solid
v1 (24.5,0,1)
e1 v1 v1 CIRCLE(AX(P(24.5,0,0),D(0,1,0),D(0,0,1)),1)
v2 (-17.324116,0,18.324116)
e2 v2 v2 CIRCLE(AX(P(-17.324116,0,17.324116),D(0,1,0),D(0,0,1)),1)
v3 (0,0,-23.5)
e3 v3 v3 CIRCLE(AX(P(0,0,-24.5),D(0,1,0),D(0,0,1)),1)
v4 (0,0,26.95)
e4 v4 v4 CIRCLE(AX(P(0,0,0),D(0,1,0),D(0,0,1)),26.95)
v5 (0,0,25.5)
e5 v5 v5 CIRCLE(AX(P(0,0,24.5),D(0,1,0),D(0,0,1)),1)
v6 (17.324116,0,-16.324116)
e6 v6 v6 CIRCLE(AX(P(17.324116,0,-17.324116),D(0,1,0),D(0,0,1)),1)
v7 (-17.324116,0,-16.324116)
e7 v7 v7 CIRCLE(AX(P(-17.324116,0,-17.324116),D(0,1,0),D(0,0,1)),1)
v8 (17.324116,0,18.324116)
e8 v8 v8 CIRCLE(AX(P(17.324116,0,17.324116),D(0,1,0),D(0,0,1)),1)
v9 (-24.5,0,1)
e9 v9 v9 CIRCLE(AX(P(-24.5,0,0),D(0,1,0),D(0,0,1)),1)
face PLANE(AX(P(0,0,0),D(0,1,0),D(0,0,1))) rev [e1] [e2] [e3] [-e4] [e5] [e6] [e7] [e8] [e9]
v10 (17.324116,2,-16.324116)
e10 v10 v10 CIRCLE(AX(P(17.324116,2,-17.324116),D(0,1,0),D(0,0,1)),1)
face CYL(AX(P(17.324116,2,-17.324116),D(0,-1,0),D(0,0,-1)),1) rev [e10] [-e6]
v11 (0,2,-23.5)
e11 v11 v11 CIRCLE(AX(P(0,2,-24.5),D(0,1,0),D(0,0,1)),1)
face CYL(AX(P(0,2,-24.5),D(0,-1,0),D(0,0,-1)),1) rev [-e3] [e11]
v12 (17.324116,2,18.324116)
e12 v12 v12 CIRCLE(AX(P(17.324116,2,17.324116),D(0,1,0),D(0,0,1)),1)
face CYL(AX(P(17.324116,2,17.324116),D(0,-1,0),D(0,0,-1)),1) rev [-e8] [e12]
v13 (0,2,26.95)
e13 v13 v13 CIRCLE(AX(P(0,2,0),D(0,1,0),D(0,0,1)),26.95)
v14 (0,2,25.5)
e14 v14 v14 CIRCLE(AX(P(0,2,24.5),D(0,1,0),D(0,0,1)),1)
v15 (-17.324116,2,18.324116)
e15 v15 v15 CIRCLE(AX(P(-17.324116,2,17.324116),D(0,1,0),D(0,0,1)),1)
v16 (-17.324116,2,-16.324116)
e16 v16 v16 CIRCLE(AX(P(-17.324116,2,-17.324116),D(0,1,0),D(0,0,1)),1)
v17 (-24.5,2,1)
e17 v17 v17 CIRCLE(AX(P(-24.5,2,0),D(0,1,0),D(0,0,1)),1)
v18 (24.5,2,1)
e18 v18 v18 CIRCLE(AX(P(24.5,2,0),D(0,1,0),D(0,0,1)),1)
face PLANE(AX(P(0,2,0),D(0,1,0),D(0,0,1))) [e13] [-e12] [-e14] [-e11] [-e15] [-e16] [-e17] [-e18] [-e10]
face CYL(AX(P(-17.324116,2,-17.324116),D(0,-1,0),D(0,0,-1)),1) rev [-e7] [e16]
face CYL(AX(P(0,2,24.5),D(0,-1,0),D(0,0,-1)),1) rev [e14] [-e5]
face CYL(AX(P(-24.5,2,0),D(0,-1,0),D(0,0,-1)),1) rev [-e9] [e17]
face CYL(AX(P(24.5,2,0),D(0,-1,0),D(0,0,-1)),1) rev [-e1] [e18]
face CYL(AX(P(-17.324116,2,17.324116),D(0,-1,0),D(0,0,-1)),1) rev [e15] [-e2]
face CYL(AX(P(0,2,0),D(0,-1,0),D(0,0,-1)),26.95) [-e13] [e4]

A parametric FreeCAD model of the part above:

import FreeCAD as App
import Part
import Sketcher

V = App.Vector

doc = App.newDocument("Part")
body = doc.addObject("PartDesign::Body", "Body")

# Sketch on XZ plane
sketch1 = doc.addObject("Sketcher::SketchObject", "Sketch")
body.addObject(sketch1)
sketch1.AttachmentSupport = (doc.XZ_Plane, [""])
sketch1.MapMode = "FlatFace"
sketch1.addGeometry([
    Part.Circle(V(0, 0, 0), V(0, 0, 1), 26.95),  # 0
    Part.Circle(V(-17.324116, 17.324116, 0), V(0, 0, 1), 1),  # 1
    Part.Circle(V(0, 24.5, 0), V(0, 0, 1), 1),  # 2
    Part.Circle(V(17.324116, 17.324116, 0), V(0, 0, 1), 1),  # 3
    Part.Circle(V(-24.5, 0, 0), V(0, 0, 1), 1),  # 4
    Part.Circle(V(-17.324116, -17.324116, 0), V(0, 0, 1), 1),  # 5
    Part.Circle(V(24.5, 0, 0), V(0, 0, 1), 1),  # 6
    Part.Circle(V(0, -24.5, 0), V(0, 0, 1), 1),  # 7
    Part.Circle(V(17.324116, -17.324116, 0), V(0, 0, 1), 1),  # 8
], False)
sketch1.addConstraint([
    Sketcher.Constraint("Coincident", 0, 3, -1, 1),
    Sketcher.Constraint("Equal", 1, 2),
    Sketcher.Constraint("Equal", 2, 3),
    Sketcher.Constraint("Equal", 3, 4),
    Sketcher.Constraint("Equal", 4, 5),
    Sketcher.Constraint("Equal", 5, 6),
    Sketcher.Constraint("Equal", 6, 7),
    Sketcher.Constraint("Equal", 7, 8),
    Sketcher.Constraint("Symmetric", 3, 3, 5, 3, -1, 1),
    Sketcher.Constraint("Symmetric", 4, 3, 6, 3, -1, 1),
    Sketcher.Constraint("Symmetric", 2, 3, 7, 3, -1, 1),
    Sketcher.Constraint("Symmetric", 1, 3, 8, 3, -1, 1),
    Sketcher.Constraint("Symmetric", 1, 3, 3, 3, -2),
    Sketcher.Constraint("PointOnObject", 2, 3, -2),
    Sketcher.Constraint("PointOnObject", 4, 3, -1),
    Sketcher.Constraint("Diameter", 1, 2.0),
    Sketcher.Constraint("Diameter", 0, 53.9),
    Sketcher.Constraint("DistanceY", -1, 1, 2, 3, 24.5),
    Sketcher.Constraint("DistanceX", 4, 3, -1, 1, 24.5),
    Sketcher.Constraint("DistanceX", 1, 3, -1, 1, 17.324116),
    Sketcher.Constraint("DistanceY", -1, 1, 1, 3, 17.324116),
])
pad1 = doc.addObject("PartDesign::Pad", "Pad")
body.addObject(pad1)
pad1.Profile = sketch1
pad1.Length = 2
pad1.Reversed = True

doc.recompute()
